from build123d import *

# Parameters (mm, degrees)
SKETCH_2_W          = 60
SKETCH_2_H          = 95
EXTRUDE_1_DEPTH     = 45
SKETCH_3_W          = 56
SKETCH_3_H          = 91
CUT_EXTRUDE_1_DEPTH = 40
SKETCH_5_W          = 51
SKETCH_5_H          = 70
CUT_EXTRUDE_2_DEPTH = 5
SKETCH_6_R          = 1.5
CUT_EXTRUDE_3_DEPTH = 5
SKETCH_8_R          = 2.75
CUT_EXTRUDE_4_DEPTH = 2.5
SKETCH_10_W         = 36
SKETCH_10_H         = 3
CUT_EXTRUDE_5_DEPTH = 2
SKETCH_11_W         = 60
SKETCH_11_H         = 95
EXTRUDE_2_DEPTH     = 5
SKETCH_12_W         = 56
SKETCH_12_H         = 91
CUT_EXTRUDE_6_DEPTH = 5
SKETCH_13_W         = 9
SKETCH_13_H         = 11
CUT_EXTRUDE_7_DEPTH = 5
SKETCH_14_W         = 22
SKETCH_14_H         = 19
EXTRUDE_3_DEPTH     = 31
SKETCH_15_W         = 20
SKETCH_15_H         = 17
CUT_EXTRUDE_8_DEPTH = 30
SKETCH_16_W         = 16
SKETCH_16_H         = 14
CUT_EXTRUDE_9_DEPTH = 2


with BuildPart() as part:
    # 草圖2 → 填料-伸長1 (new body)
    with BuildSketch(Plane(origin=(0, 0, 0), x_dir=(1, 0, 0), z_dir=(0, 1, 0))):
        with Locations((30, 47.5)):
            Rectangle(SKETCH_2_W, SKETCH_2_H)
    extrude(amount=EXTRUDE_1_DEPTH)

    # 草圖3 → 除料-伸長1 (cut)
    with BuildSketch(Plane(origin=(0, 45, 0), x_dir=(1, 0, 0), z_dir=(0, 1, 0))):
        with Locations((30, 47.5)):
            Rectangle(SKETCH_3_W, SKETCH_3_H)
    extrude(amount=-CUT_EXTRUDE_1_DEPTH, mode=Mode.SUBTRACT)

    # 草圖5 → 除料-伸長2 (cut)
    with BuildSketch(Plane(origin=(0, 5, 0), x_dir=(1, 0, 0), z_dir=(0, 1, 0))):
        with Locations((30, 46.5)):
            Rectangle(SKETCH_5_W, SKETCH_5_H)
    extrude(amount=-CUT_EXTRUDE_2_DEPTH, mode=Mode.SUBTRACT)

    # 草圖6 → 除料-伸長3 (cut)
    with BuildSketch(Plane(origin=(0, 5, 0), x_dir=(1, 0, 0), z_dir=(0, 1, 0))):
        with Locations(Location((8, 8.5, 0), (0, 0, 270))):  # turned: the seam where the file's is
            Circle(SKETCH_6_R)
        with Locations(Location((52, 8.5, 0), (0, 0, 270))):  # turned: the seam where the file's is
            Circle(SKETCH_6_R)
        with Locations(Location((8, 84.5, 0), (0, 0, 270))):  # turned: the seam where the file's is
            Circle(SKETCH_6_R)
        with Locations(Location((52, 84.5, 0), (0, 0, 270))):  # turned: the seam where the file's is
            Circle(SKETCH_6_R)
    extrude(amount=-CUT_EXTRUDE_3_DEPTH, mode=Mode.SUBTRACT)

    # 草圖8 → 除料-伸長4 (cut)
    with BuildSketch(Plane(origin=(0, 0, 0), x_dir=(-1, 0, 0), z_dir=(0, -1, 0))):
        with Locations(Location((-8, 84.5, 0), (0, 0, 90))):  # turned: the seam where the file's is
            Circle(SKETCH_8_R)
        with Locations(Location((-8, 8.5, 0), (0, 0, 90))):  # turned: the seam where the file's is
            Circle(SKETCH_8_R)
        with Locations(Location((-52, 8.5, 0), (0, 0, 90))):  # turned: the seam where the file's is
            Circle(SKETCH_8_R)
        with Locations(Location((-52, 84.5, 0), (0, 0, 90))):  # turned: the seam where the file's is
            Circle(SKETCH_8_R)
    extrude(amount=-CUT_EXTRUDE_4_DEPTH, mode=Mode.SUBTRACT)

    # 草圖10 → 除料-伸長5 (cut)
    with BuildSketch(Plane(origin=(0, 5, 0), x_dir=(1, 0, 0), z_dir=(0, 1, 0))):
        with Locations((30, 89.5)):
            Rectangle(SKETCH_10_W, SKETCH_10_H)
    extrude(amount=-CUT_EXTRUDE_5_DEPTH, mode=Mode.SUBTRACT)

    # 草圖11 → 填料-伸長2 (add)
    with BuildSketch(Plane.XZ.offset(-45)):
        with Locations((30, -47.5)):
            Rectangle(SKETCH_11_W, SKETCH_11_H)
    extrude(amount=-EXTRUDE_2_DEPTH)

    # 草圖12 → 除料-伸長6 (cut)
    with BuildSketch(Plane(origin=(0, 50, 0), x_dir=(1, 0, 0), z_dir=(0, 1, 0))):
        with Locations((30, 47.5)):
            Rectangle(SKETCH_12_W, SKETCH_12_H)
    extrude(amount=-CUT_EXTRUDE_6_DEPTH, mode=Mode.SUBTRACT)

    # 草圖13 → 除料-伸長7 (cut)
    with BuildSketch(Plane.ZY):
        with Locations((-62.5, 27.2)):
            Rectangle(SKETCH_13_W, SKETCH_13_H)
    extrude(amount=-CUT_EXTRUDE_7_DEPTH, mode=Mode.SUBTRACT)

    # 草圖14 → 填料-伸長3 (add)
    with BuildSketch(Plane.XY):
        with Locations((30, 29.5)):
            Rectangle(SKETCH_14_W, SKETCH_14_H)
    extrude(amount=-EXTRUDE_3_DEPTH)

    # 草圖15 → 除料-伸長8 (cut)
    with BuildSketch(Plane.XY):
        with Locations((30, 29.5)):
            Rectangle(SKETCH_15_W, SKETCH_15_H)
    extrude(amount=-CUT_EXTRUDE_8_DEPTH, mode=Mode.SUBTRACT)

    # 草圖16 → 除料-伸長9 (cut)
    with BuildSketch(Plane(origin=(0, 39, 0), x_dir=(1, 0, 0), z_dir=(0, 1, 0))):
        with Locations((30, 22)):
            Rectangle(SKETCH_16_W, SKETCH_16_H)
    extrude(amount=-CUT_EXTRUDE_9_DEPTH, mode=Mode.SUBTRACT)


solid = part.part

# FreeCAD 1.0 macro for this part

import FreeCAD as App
import Part
import Sketcher
Q = App.Units.Quantity

doc = App.newDocument("Part")
body = doc.addObject("PartDesign::Body", "Body")

sketch1 = body.newObject("Sketcher::SketchObject", "Sketch")
sketch1.AttachmentSupport = (doc.getObject("XZ_Plane"), [""])
sketch1.MapMode = "FlatFace"
sketch1.addGeometry(Part.LineSegment(App.Vector(0, -95, 0), App.Vector(0, 0, 0)), False)
sketch1.addGeometry(Part.LineSegment(App.Vector(0, 0, 0), App.Vector(60, 0, 0)), False)
sketch1.addGeometry(Part.LineSegment(App.Vector(60, 0, 0), App.Vector(60, -95, 0)), False)
sketch1.addGeometry(Part.LineSegment(App.Vector(60, -95, 0), App.Vector(0, -95, 0)), False)
sketch1.addConstraint(Sketcher.Constraint("Coincident", 0, 2, 1, 1))
sketch1.addConstraint(Sketcher.Constraint("Coincident", 1, 2, 2, 1))
sketch1.addConstraint(Sketcher.Constraint("Coincident", 2, 2, 3, 1))
sketch1.addConstraint(Sketcher.Constraint("Coincident", 3, 2, 0, 1))
sketch1.addConstraint(Sketcher.Constraint("Vertical", 0))
sketch1.addConstraint(Sketcher.Constraint("Horizontal", 1))
sketch1.addConstraint(Sketcher.Constraint("Vertical", 2))
sketch1.addConstraint(Sketcher.Constraint("Horizontal", 3))
sketch1.addConstraint(Sketcher.Constraint("Coincident", 0, 2, -1, 1))
sketch1.addConstraint(Sketcher.Constraint("DistanceX", 1, 1, 1, 2, Q("60 mm")))
sketch1.addConstraint(Sketcher.Constraint("DistanceY", 0, 1, 0, 2, Q("95 mm")))
pad1 = body.newObject("PartDesign::Pad", "Pad")
pad1.Profile = sketch1
pad1.Length = 45
pad1.Reversed = True

sketch2 = body.newObject("Sketcher::SketchObject", "Sketch001")
sketch2.AttachmentSupport = (doc.getObject("XZ_Plane"), [""])
sketch2.MapMode = "FlatFace"
sketch2.AttachmentOffset = App.Placement(App.Vector(0, 0, -45), App.Rotation())
sketch2.addGeometry(Part.LineSegment(App.Vector(2, -93, 0), App.Vector(2, -2, 0)), False)
sketch2.addGeometry(Part.LineSegment(App.Vector(2, -2, 0), App.Vector(58, -2, 0)), False)
sketch2.addGeometry(Part.LineSegment(App.Vector(58, -2, 0), App.Vector(58, -93, 0)), False)
sketch2.addGeometry(Part.LineSegment(App.Vector(58, -93, 0), App.Vector(2, -93, 0)), False)
sketch2.addConstraint(Sketcher.Constraint("Coincident", 0, 2, 1, 1))
sketch2.addConstraint(Sketcher.Constraint("Coincident", 1, 2, 2, 1))
sketch2.addConstraint(Sketcher.Constraint("Coincident", 2, 2, 3, 1))
sketch2.addConstraint(Sketcher.Constraint("Coincident", 3, 2, 0, 1))
sketch2.addConstraint(Sketcher.Constraint("Vertical", 0))
sketch2.addConstraint(Sketcher.Constraint("Horizontal", 1))
sketch2.addConstraint(Sketcher.Constraint("Vertical", 2))
sketch2.addConstraint(Sketcher.Constraint("Horizontal", 3))
sketch2.addConstraint(Sketcher.Constraint("DistanceX", 1, 1, 1, 2, Q("56 mm")))
sketch2.addConstraint(Sketcher.Constraint("DistanceY", 0, 1, 0, 2, Q("91 mm")))
sketch2.addConstraint(Sketcher.Constraint("DistanceX", -1, 1, 0, 2, Q("2 mm")))
sketch2.addConstraint(Sketcher.Constraint("DistanceY", 0, 2, -1, 1, Q("2 mm")))
pocket1 = body.newObject("PartDesign::Pocket", "Pocket")
pocket1.Profile = sketch2
pocket1.Length = 40
pocket1.Reversed = True

sketch3 = body.newObject("Sketcher::SketchObject", "Sketch002")
sketch3.AttachmentSupport = (doc.getObject("XZ_Plane"), [""])
sketch3.MapMode = "FlatFace"
sketch3.AttachmentOffset = App.Placement(App.Vector(0, 0, -5), App.Rotation())
sketch3.addGeometry(Part.LineSegment(App.Vector(4.5, -81.5, 0), App.Vector(4.5, -11.5, 0)), False)
sketch3.addGeometry(Part.LineSegment(App.Vector(4.5, -11.5, 0), App.Vector(55.5, -11.5, 0)), False)
sketch3.addGeometry(Part.LineSegment(App.Vector(55.5, -11.5, 0), App.Vector(55.5, -81.5, 0)), False)
sketch3.addGeometry(Part.LineSegment(App.Vector(55.5, -81.5, 0), App.Vector(4.5, -81.5, 0)), False)
sketch3.addConstraint(Sketcher.Constraint("Coincident", 0, 2, 1, 1))
sketch3.addConstraint(Sketcher.Constraint("Coincident", 1, 2, 2, 1))
sketch3.addConstraint(Sketcher.Constraint("Coincident", 2, 2, 3, 1))
sketch3.addConstraint(Sketcher.Constraint("Coincident", 3, 2, 0, 1))
sketch3.addConstraint(Sketcher.Constraint("Vertical", 0))
sketch3.addConstraint(Sketcher.Constraint("Horizontal", 1))
sketch3.addConstraint(Sketcher.Constraint("Vertical", 2))
sketch3.addConstraint(Sketcher.Constraint("Horizontal", 3))
sketch3.addConstraint(Sketcher.Constraint("DistanceX", 1, 1, 1, 2, Q("51 mm")))
sketch3.addConstraint(Sketcher.Constraint("DistanceY", 0, 1, 0, 2, Q("70 mm")))
sketch3.addConstraint(Sketcher.Constraint("DistanceX", -1, 1, 0, 2, Q("4.5 mm")))
sketch3.addConstraint(Sketcher.Constraint("DistanceY", 0, 2, -1, 1, Q("11.5 mm")))
pocket2 = body.newObject("PartDesign::Pocket", "Pocket001")
pocket2.Profile = sketch3
pocket2.Length = 5
pocket2.Reversed = True

sketch4 = body.newObject("Sketcher::SketchObject", "Sketch003")
sketch4.AttachmentSupport = (doc.getObject("XZ_Plane"), [""])
sketch4.MapMode = "FlatFace"
sketch4.AttachmentOffset = App.Placement(App.Vector(0, 0, -5), App.Rotation())
sketch4.addGeometry(Part.Circle(App.Vector(8, -8.5, 0), App.Vector(0, 0, 1), 1.5), False)
sketch4.addGeometry(Part.Circle(App.Vector(52, -8.5, 0), App.Vector(0, 0, 1), 1.5), False)
sketch4.addGeometry(Part.Circle(App.Vector(8, -84.5, 0), App.Vector(0, 0, 1), 1.5), False)
sketch4.addGeometry(Part.Circle(App.Vector(52, -84.5, 0), App.Vector(0, 0, 1), 1.5), False)
sketch4.addConstraint(Sketcher.Constraint("Equal", 0, 1))
sketch4.addConstraint(Sketcher.Constraint("Equal", 1, 2))
sketch4.addConstraint(Sketcher.Constraint("Equal", 2, 3))
sketch4.addConstraint(Sketcher.Constraint("Horizontal", 0, 3, 1, 3))
sketch4.addConstraint(Sketcher.Constraint("Horizontal", 2, 3, 3, 3))
sketch4.addConstraint(Sketcher.Constraint("Vertical", 0, 3, 2, 3))
sketch4.addConstraint(Sketcher.Constraint("Vertical", 1, 3, 3, 3))
sketch4.addConstraint(Sketcher.Constraint("Diameter", 0, Q("3 mm")))
sketch4.addConstraint(Sketcher.Constraint("DistanceX", -1, 1, 0, 3, Q("8 mm")))
sketch4.addConstraint(Sketcher.Constraint("DistanceX", -1, 1, 1, 3, Q("52 mm")))
sketch4.addConstraint(Sketcher.Constraint("DistanceY", 2, 3, 0, 3, Q("76 mm")))
sketch4.addConstraint(Sketcher.Constraint("DistanceY", 0, 3, -1, 1, Q("8.5 mm")))
pocket3 = body.newObject("PartDesign::Pocket", "Pocket002")
pocket3.Profile = sketch4
pocket3.Length = 5
pocket3.Reversed = True

sketch5 = body.newObject("Sketcher::SketchObject", "Sketch004")
sketch5.AttachmentSupport = (doc.getObject("XZ_Plane"), [""])
sketch5.MapMode = "FlatFace"
sketch5.addGeometry(Part.Circle(App.Vector(8, -84.5, 0), App.Vector(0, 0, 1), 2.75), False)
sketch5.addGeometry(Part.Circle(App.Vector(8, -8.5, 0), App.Vector(0, 0, 1), 2.75), False)
sketch5.addGeometry(Part.Circle(App.Vector(52, -8.5, 0), App.Vector(0, 0, 1), 2.75), False)
sketch5.addGeometry(Part.Circle(App.Vector(52, -84.5, 0), App.Vector(0, 0, 1), 2.75), False)
sketch5.addConstraint(Sketcher.Constraint("Equal", 0, 1))
sketch5.addConstraint(Sketcher.Constraint("Equal", 1, 2))
sketch5.addConstraint(Sketcher.Constraint("Equal", 2, 3))
sketch5.addConstraint(Sketcher.Constraint("Horizontal", 1, 3, 2, 3))
sketch5.addConstraint(Sketcher.Constraint("Horizontal", 0, 3, 3, 3))
sketch5.addConstraint(Sketcher.Constraint("Vertical", 0, 3, 1, 3))
sketch5.addConstraint(Sketcher.Constraint("Vertical", 2, 3, 3, 3))
sketch5.addConstraint(Sketcher.Constraint("Diameter", 0, Q("5.5 mm")))
sketch5.addConstraint(Sketcher.Constraint("DistanceX", -1, 1, 0, 3, Q("8 mm")))
sketch5.addConstraint(Sketcher.Constraint("DistanceX", -1, 1, 2, 3, Q("52 mm")))
sketch5.addConstraint(Sketcher.Constraint("DistanceY", 0, 3, 1, 3, Q("76 mm")))
sketch5.addConstraint(Sketcher.Constraint("DistanceY", 0, 3, -1, 1, Q("84.5 mm")))
pocket4 = body.newObject("PartDesign::Pocket", "Pocket003")
pocket4.Profile = sketch5
pocket4.Length = 2.5

sketch6 = body.newObject("Sketcher::SketchObject", "Sketch005")
sketch6.AttachmentSupport = (doc.getObject("XZ_Plane"), [""])
sketch6.MapMode = "FlatFace"
sketch6.AttachmentOffset = App.Placement(App.Vector(0, 0, -5), App.Rotation())
sketch6.addGeometry(Part.LineSegment(App.Vector(12, -91, 0), App.Vector(12, -88, 0)), False)
sketch6.addGeometry(Part.LineSegment(App.Vector(12, -88, 0), App.Vector(48, -88, 0)), False)
sketch6.addGeometry(Part.LineSegment(App.Vector(48, -88, 0), App.Vector(48, -91, 0)), False)
sketch6.addGeometry(Part.LineSegment(App.Vector(48, -91, 0), App.Vector(12, -91, 0)), False)
sketch6.addConstraint(Sketcher.Constraint("Coincident", 0, 2, 1, 1))
sketch6.addConstraint(Sketcher.Constraint("Coincident", 1, 2, 2, 1))
sketch6.addConstraint(Sketcher.Constraint("Coincident", 2, 2, 3, 1))
sketch6.addConstraint(Sketcher.Constraint("Coincident", 3, 2, 0, 1))
sketch6.addConstraint(Sketcher.Constraint("Vertical", 0))
sketch6.addConstraint(Sketcher.Constraint("Horizontal", 1))
sketch6.addConstraint(Sketcher.Constraint("Vertical", 2))
sketch6.addConstraint(Sketcher.Constraint("Horizontal", 3))
sketch6.addConstraint(Sketcher.Constraint("DistanceX", 1, 1, 1, 2, Q("36 mm")))
sketch6.addConstraint(Sketcher.Constraint("DistanceY", 0, 1, 0, 2, Q("3 mm")))
sketch6.addConstraint(Sketcher.Constraint("DistanceX", -1, 1, 0, 2, Q("12 mm")))
sketch6.addConstraint(Sketcher.Constraint("DistanceY", 0, 2, -1, 1, Q("88 mm")))
pocket5 = body.newObject("PartDesign::Pocket", "Pocket004")
pocket5.Profile = sketch6
pocket5.Length = 2
pocket5.Reversed = True

sketch7 = body.newObject("Sketcher::SketchObject", "Sketch006")
sketch7.AttachmentSupport = (doc.getObject("XZ_Plane"), [""])
sketch7.MapMode = "FlatFace"
sketch7.AttachmentOffset = App.Placement(App.Vector(0, 0, -45), App.Rotation())
sketch7.addGeometry(Part.LineSegment(App.Vector(0, 0, 0), App.Vector(0, -95, 0)), False)
sketch7.addGeometry(Part.LineSegment(App.Vector(0, -95, 0), App.Vector(60, -95, 0)), False)
sketch7.addGeometry(Part.LineSegment(App.Vector(60, -95, 0), App.Vector(60, 0, 0)), False)
sketch7.addGeometry(Part.LineSegment(App.Vector(60, 0, 0), App.Vector(0, 0, 0)), False)
sketch7.addConstraint(Sketcher.Constraint("Coincident", 0, 2, 1, 1))
sketch7.addConstraint(Sketcher.Constraint("Coincident", 1, 2, 2, 1))
sketch7.addConstraint(Sketcher.Constraint("Coincident", 2, 2, 3, 1))
sketch7.addConstraint(Sketcher.Constraint("Coincident", 3, 2, 0, 1))
sketch7.addConstraint(Sketcher.Constraint("Vertical", 0))
sketch7.addConstraint(Sketcher.Constraint("Horizontal", 1))
sketch7.addConstraint(Sketcher.Constraint("Vertical", 2))
sketch7.addConstraint(Sketcher.Constraint("Horizontal", 3))
sketch7.addConstraint(Sketcher.Constraint("Coincident", 3, 2, -1, 1))
sketch7.addConstraint(Sketcher.Constraint("DistanceX", 1, 1, 1, 2, Q("60 mm")))
sketch7.addConstraint(Sketcher.Constraint("DistanceY", 0, 2, 0, 1, Q("95 mm")))
pad2 = body.newObject("PartDesign::Pad", "Pad001")
pad2.Profile = sketch7
pad2.Length = 5
pad2.Reversed = True

sketch8 = body.newObject("Sketcher::SketchObject", "Sketch007")
sketch8.AttachmentSupport = (doc.getObject("XZ_Plane"), [""])
sketch8.MapMode = "FlatFace"
sketch8.AttachmentOffset = App.Placement(App.Vector(0, 0, -50), App.Rotation())
sketch8.addGeometry(Part.LineSegment(App.Vector(2, -93, 0), App.Vector(2, -2, 0)), False)
sketch8.addGeometry(Part.LineSegment(App.Vector(2, -2, 0), App.Vector(58, -2, 0)), False)
sketch8.addGeometry(Part.LineSegment(App.Vector(58, -2, 0), App.Vector(58, -93, 0)), False)
sketch8.addGeometry(Part.LineSegment(App.Vector(58, -93, 0), App.Vector(2, -93, 0)), False)
sketch8.addConstraint(Sketcher.Constraint("Coincident", 0, 2, 1, 1))
sketch8.addConstraint(Sketcher.Constraint("Coincident", 1, 2, 2, 1))
sketch8.addConstraint(Sketcher.Constraint("Coincident", 2, 2, 3, 1))
sketch8.addConstraint(Sketcher.Constraint("Coincident", 3, 2, 0, 1))
sketch8.addConstraint(Sketcher.Constraint("Vertical", 0))
sketch8.addConstraint(Sketcher.Constraint("Horizontal", 1))
sketch8.addConstraint(Sketcher.Constraint("Vertical", 2))
sketch8.addConstraint(Sketcher.Constraint("Horizontal", 3))
sketch8.addConstraint(Sketcher.Constraint("DistanceX", 1, 1, 1, 2, Q("56 mm")))
sketch8.addConstraint(Sketcher.Constraint("DistanceY", 0, 1, 0, 2, Q("91 mm")))
sketch8.addConstraint(Sketcher.Constraint("DistanceX", -1, 1, 0, 2, Q("2 mm")))
sketch8.addConstraint(Sketcher.Constraint("DistanceY", 0, 2, -1, 1, Q("2 mm")))
pocket6 = body.newObject("PartDesign::Pocket", "Pocket005")
pocket6.Profile = sketch8
pocket6.Length = 5
pocket6.Reversed = True

sketch9 = body.newObject("Sketcher::SketchObject", "Sketch008")
sketch9.AttachmentSupport = (doc.getObject("YZ_Plane"), [""])
sketch9.MapMode = "FlatFace"
sketch9.addGeometry(Part.LineSegment(App.Vector(32.7, -67, 0), App.Vector(21.7, -67, 0)), False)
sketch9.addGeometry(Part.LineSegment(App.Vector(21.7, -67, 0), App.Vector(21.7, -58, 0)), False)
sketch9.addGeometry(Part.LineSegment(App.Vector(21.7, -58, 0), App.Vector(32.7, -58, 0)), False)
sketch9.addGeometry(Part.LineSegment(App.Vector(32.7, -58, 0), App.Vector(32.7, -67, 0)), False)
sketch9.addConstraint(Sketcher.Constraint("Coincident", 0, 2, 1, 1))
sketch9.addConstraint(Sketcher.Constraint("Coincident", 1, 2, 2, 1))
sketch9.addConstraint(Sketcher.Constraint("Coincident", 2, 2, 3, 1))
sketch9.addConstraint(Sketcher.Constraint("Coincident", 3, 2, 0, 1))
sketch9.addConstraint(Sketcher.Constraint("Horizontal", 0))
sketch9.addConstraint(Sketcher.Constraint("Vertical", 1))
sketch9.addConstraint(Sketcher.Constraint("Horizontal", 2))
sketch9.addConstraint(Sketcher.Constraint("Vertical", 3))
sketch9.addConstraint(Sketcher.Constraint("DistanceX", 0, 2, 0, 1, Q("11 mm")))
sketch9.addConstraint(Sketcher.Constraint("DistanceY", 1, 1, 1, 2, Q("9 mm")))
sketch9.addConstraint(Sketcher.Constraint("DistanceY", 0, 2, -1, 1, Q("67 mm")))
sketch9.addConstraint(Sketcher.Constraint("DistanceX", -1, 1, 0, 2, Q("21.7 mm")))
pocket7 = body.newObject("PartDesign::Pocket", "Pocket006")
pocket7.Profile = sketch9
pocket7.Length = 5
pocket7.Reversed = True

sketch10 = body.newObject("Sketcher::SketchObject", "Sketch009")
sketch10.AttachmentSupport = (doc.getObject("XY_Plane"), [""])
sketch10.MapMode = "FlatFace"
sketch10.addGeometry(Part.LineSegment(App.Vector(19, 39, 0), App.Vector(19, 20, 0)), False)
sketch10.addGeometry(Part.LineSegment(App.Vector(19, 20, 0), App.Vector(41, 20, 0)), False)
sketch10.addGeometry(Part.LineSegment(App.Vector(41, 20, 0), App.Vector(41, 39, 0)), False)
sketch10.addGeometry(Part.LineSegment(App.Vector(41, 39, 0), App.Vector(19, 39, 0)), False)
sketch10.addConstraint(Sketcher.Constraint("Coincident", 0, 2, 1, 1))
sketch10.addConstraint(Sketcher.Constraint("Coincident", 1, 2, 2, 1))
sketch10.addConstraint(Sketcher.Constraint("Coincident", 2, 2, 3, 1))
sketch10.addConstraint(Sketcher.Constraint("Coincident", 3, 2, 0, 1))
sketch10.addConstraint(Sketcher.Constraint("Vertical", 0))
sketch10.addConstraint(Sketcher.Constraint("Horizontal", 1))
sketch10.addConstraint(Sketcher.Constraint("Vertical", 2))
sketch10.addConstraint(Sketcher.Constraint("Horizontal", 3))
sketch10.addConstraint(Sketcher.Constraint("DistanceX", 1, 1, 1, 2, Q("22 mm")))
sketch10.addConstraint(Sketcher.Constraint("DistanceY", 0, 2, 0, 1, Q("19 mm")))
sketch10.addConstraint(Sketcher.Constraint("DistanceX", -1, 1, 0, 2, Q("19 mm")))
sketch10.addConstraint(Sketcher.Constraint("DistanceY", -1, 1, 0, 2, Q("20 mm")))
pad3 = body.newObject("PartDesign::Pad", "Pad002")
pad3.Profile = sketch10
pad3.Length = 31
pad3.Reversed = True

sketch11 = body.newObject("Sketcher::SketchObject", "Sketch010")
sketch11.AttachmentSupport = (doc.getObject("XY_Plane"), [""])
sketch11.MapMode = "FlatFace"
sketch11.addGeometry(Part.LineSegment(App.Vector(20, 38, 0), App.Vector(20, 21, 0)), False)
sketch11.addGeometry(Part.LineSegment(App.Vector(20, 21, 0), App.Vector(40, 21, 0)), False)
sketch11.addGeometry(Part.LineSegment(App.Vector(40, 21, 0), App.Vector(40, 38, 0)), False)
sketch11.addGeometry(Part.LineSegment(App.Vector(40, 38, 0), App.Vector(20, 38, 0)), False)
sketch11.addConstraint(Sketcher.Constraint("Coincident", 0, 2, 1, 1))
sketch11.addConstraint(Sketcher.Constraint("Coincident", 1, 2, 2, 1))
sketch11.addConstraint(Sketcher.Constraint("Coincident", 2, 2, 3, 1))
sketch11.addConstraint(Sketcher.Constraint("Coincident", 3, 2, 0, 1))
sketch11.addConstraint(Sketcher.Constraint("Vertical", 0))
sketch11.addConstraint(Sketcher.Constraint("Horizontal", 1))
sketch11.addConstraint(Sketcher.Constraint("Vertical", 2))
sketch11.addConstraint(Sketcher.Constraint("Horizontal", 3))
sketch11.addConstraint(Sketcher.Constraint("DistanceX", 1, 1, 1, 2, Q("20 mm")))
sketch11.addConstraint(Sketcher.Constraint("DistanceY", 0, 2, 0, 1, Q("17 mm")))
sketch11.addConstraint(Sketcher.Constraint("DistanceX", -1, 1, 0, 2, Q("20 mm")))
sketch11.addConstraint(Sketcher.Constraint("DistanceY", -1, 1, 0, 2, Q("21 mm")))
pocket8 = body.newObject("PartDesign::Pocket", "Pocket007")
pocket8.Profile = sketch11
pocket8.Length = 30

sketch12 = body.newObject("Sketcher::SketchObject", "Sketch011")
sketch12.AttachmentSupport = (doc.getObject("XZ_Plane"), [""])
sketch12.MapMode = "FlatFace"
sketch12.AttachmentOffset = App.Placement(App.Vector(0, 0, -39), App.Rotation())
sketch12.addGeometry(Part.LineSegment(App.Vector(22, -29, 0), App.Vector(22, -15, 0)), False)
sketch12.addGeometry(Part.LineSegment(App.Vector(22, -15, 0), App.Vector(38, -15, 0)), False)
sketch12.addGeometry(Part.LineSegment(App.Vector(38, -15, 0), App.Vector(38, -29, 0)), False)
sketch12.addGeometry(Part.LineSegment(App.Vector(38, -29, 0), App.Vector(22, -29, 0)), False)
sketch12.addConstraint(Sketcher.Constraint("Coincident", 0, 2, 1, 1))
sketch12.addConstraint(Sketcher.Constraint("Coincident", 1, 2, 2, 1))
sketch12.addConstraint(Sketcher.Constraint("Coincident", 2, 2, 3, 1))
sketch12.addConstraint(Sketcher.Constraint("Coincident", 3, 2, 0, 1))
sketch12.addConstraint(Sketcher.Constraint("Vertical", 0))
sketch12.addConstraint(Sketcher.Constraint("Horizontal", 1))
sketch12.addConstraint(Sketcher.Constraint("Vertical", 2))
sketch12.addConstraint(Sketcher.Constraint("Horizontal", 3))
sketch12.addConstraint(Sketcher.Constraint("DistanceX", 1, 1, 1, 2, Q("16 mm")))
sketch12.addConstraint(Sketcher.Constraint("DistanceY", 0, 1, 0, 2, Q("14 mm")))
sketch12.addConstraint(Sketcher.Constraint("DistanceX", -1, 1, 0, 2, Q("22 mm")))
sketch12.addConstraint(Sketcher.Constraint("DistanceY", 0, 2, -1, 1, Q("15 mm")))
pocket9 = body.newObject("PartDesign::Pocket", "Pocket008")
pocket9.Profile = sketch12
pocket9.Length = 2
pocket9.Reversed = True

doc.recompute()
